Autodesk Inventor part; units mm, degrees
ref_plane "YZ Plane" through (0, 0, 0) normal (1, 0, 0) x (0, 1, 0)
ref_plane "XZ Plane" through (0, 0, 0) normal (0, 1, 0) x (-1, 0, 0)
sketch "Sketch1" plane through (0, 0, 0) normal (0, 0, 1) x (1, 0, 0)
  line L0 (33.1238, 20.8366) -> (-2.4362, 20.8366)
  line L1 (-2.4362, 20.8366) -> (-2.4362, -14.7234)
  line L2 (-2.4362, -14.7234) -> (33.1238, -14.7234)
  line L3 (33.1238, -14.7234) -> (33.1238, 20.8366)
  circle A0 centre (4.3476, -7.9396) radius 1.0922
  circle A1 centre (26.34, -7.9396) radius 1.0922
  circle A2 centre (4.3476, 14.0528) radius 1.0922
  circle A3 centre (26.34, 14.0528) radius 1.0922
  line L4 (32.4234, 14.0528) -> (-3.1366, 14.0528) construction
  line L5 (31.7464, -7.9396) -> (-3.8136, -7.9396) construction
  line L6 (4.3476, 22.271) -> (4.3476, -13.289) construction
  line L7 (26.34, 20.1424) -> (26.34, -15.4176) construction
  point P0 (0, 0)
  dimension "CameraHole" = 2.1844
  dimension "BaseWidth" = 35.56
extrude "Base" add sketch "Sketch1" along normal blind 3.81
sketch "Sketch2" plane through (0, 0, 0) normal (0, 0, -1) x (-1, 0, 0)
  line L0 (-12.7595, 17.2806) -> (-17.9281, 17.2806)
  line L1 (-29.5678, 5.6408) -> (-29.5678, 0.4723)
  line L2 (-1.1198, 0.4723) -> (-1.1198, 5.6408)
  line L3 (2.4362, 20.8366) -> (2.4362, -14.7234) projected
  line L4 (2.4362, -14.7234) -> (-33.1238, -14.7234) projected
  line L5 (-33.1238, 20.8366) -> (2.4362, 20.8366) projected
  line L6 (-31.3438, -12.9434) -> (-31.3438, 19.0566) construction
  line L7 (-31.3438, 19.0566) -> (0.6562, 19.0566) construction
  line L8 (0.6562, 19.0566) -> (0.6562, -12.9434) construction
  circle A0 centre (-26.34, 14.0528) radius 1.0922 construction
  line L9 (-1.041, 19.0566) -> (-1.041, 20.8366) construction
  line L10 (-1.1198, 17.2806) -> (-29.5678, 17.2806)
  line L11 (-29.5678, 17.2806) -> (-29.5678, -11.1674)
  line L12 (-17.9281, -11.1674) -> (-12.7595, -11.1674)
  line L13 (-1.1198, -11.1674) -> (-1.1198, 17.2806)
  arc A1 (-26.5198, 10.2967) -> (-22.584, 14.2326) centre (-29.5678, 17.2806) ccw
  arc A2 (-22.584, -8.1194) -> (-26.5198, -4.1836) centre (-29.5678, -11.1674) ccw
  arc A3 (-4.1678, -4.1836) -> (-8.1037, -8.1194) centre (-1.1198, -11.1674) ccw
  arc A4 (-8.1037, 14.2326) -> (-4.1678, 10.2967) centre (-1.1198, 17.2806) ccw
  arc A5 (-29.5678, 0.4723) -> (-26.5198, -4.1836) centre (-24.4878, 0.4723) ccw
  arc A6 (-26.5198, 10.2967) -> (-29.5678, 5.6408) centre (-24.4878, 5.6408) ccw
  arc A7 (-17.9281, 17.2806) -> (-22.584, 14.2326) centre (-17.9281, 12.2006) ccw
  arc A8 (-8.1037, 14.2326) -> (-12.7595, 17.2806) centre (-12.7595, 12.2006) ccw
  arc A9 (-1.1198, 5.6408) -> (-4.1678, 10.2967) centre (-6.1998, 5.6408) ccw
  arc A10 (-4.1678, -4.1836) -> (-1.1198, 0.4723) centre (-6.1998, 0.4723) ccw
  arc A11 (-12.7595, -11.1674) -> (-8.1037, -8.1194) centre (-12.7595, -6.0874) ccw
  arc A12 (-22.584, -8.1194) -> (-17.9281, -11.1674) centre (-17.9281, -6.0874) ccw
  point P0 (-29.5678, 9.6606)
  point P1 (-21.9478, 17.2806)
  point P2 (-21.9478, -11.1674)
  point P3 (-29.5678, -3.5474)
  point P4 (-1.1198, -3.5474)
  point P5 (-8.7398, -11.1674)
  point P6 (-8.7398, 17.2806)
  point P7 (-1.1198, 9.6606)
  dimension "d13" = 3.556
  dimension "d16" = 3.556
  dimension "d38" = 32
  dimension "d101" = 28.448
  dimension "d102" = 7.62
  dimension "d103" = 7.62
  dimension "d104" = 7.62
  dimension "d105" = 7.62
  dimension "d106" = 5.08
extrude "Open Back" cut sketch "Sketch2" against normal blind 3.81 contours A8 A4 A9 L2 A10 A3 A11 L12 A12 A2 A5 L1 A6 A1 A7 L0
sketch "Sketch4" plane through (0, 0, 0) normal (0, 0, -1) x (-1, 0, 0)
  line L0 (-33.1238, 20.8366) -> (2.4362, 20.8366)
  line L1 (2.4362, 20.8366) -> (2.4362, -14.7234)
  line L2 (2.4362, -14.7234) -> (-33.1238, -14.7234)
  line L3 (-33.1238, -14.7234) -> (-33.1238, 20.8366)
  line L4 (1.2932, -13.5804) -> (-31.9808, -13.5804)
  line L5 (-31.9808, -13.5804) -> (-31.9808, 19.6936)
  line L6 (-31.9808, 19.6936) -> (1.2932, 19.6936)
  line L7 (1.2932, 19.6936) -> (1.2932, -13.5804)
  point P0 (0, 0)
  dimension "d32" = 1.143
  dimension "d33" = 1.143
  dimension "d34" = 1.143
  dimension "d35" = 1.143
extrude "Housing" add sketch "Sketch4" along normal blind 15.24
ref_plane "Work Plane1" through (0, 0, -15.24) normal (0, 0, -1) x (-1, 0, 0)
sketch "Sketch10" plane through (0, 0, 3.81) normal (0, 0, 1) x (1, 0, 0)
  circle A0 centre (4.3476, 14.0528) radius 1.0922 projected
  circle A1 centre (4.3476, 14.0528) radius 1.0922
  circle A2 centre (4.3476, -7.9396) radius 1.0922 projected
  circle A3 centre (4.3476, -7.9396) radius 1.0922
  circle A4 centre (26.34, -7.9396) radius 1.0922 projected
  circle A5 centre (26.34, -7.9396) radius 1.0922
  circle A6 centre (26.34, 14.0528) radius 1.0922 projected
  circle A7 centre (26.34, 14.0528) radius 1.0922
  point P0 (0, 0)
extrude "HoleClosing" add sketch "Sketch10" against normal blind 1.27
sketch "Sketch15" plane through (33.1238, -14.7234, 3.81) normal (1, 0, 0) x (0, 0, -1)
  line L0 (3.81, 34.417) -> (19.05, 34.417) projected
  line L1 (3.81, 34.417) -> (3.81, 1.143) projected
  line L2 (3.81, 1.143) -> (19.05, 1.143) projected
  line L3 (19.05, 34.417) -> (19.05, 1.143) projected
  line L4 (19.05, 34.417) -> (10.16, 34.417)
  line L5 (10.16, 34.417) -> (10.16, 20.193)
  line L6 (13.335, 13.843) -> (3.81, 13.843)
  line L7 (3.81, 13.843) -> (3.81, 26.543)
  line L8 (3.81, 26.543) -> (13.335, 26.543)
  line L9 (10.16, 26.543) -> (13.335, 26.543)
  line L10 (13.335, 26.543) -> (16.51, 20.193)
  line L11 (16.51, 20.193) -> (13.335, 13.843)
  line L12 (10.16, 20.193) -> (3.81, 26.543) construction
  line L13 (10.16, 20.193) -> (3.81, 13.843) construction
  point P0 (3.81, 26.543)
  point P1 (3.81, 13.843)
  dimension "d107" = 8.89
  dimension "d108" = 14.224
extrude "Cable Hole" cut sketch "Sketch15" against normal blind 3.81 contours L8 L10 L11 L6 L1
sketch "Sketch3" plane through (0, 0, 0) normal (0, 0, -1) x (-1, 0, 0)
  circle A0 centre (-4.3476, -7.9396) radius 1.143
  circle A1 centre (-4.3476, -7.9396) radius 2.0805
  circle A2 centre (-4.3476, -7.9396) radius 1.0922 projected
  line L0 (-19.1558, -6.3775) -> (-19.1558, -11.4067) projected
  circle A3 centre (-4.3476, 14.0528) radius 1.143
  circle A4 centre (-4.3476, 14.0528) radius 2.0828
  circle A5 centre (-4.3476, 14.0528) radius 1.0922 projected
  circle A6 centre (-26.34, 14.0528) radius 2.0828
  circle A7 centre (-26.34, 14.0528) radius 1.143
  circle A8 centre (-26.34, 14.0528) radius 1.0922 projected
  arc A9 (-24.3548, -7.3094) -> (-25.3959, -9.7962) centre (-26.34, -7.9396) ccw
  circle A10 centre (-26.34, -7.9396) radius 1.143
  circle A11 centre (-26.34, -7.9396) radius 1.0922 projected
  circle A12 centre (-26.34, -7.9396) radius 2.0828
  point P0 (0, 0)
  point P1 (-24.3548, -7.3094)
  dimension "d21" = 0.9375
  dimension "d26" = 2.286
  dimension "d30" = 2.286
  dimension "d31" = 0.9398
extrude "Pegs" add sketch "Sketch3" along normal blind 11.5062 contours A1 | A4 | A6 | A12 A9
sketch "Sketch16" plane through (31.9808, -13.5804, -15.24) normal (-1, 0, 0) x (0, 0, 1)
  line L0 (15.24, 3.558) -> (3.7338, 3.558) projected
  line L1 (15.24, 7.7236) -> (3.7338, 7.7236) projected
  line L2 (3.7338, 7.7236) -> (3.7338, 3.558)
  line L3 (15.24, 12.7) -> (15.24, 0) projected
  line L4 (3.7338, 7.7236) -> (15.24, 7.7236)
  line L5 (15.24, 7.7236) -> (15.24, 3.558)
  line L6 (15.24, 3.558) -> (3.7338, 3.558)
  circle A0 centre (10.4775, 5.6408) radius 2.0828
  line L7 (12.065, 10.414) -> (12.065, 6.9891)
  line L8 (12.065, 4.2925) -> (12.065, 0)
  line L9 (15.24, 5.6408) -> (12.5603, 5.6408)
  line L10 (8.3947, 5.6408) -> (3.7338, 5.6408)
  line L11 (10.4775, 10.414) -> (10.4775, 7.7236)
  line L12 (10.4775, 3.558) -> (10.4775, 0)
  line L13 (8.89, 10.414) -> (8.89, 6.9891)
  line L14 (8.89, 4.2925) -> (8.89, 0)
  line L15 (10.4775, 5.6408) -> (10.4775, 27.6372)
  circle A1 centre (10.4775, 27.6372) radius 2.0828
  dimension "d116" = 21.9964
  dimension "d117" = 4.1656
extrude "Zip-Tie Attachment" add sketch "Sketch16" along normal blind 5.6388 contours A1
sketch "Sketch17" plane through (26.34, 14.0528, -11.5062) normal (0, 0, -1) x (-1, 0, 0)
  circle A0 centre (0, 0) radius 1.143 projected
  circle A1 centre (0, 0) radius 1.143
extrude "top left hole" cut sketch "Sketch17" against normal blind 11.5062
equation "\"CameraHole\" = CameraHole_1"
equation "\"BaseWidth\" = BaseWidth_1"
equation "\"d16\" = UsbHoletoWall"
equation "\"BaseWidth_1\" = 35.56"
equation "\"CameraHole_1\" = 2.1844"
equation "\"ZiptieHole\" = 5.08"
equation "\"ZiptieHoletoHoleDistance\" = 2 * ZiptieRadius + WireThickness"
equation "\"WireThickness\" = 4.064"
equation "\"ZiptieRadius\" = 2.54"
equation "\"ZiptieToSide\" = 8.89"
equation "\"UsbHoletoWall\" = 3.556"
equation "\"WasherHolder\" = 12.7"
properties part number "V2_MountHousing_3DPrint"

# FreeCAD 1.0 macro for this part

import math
import FreeCAD as App
import Part
import Sketcher
from FreeCAD import Vector
Q = App.Units.Quantity

doc = App.newDocument("Part")
body = doc.addObject("PartDesign::Body", "Body")

sketch1 = body.newObject("Sketcher::SketchObject", "Sketch")
sketch1.AttachmentSupport = (doc.getObject("XY_Plane"), [""])
sketch1.MapMode = "FlatFace"
sketch1.addGeometry([
    Part.LineSegment(Vector(33.1238, -14.7234, 0), Vector(33.1238, 20.8366, 0)),
    Part.LineSegment(Vector(33.1238, 20.8366, 0), Vector(-2.4362, 20.8366, 0)),
    Part.LineSegment(Vector(-2.4362, 20.8366, 0), Vector(-2.4362, -14.7234, 0)),
    Part.LineSegment(Vector(-2.4362, -14.7234, 0), Vector(33.1238, -14.7234, 0)),
    Part.Circle(Vector(4.3476, -7.9396, 0), Vector(0, 0, 1), 1.0922),
    Part.Circle(Vector(26.34, -7.9396, 0), Vector(0, 0, 1), 1.0922),
    Part.Circle(Vector(4.3476, 14.0528, 0), Vector(0, 0, 1), 1.0922),
    Part.Circle(Vector(26.34, 14.0528, 0), Vector(0, 0, 1), 1.0922),
], False)
sketch1.addConstraint([
    Sketcher.Constraint("Coincident", 0, 2, 1, 1),
    Sketcher.Constraint("Coincident", 1, 2, 2, 1),
    Sketcher.Constraint("Coincident", 2, 2, 3, 1),
    Sketcher.Constraint("Coincident", 3, 2, 0, 1),
    Sketcher.Constraint("Vertical", 0),
    Sketcher.Constraint("Horizontal", 1),
    Sketcher.Constraint("Vertical", 2),
    Sketcher.Constraint("Horizontal", 3),
    Sketcher.Constraint("Equal", 4, 5),
    Sketcher.Constraint("Equal", 5, 6),
    Sketcher.Constraint("Equal", 6, 7),
    Sketcher.Constraint("Horizontal", 4, 3, 5, 3),
    Sketcher.Constraint("Horizontal", 6, 3, 7, 3),
    Sketcher.Constraint("Vertical", 4, 3, 6, 3),
    Sketcher.Constraint("Vertical", 5, 3, 7, 3),
    Sketcher.Constraint("Equal", 3, 0),
    Sketcher.Constraint("Diameter", 4, Q("0.086 in")),
    Sketcher.Constraint("DistanceX", 1, 2, 1, 1, Q("1.4 in")),
    Sketcher.Constraint("DistanceX", -1, 1, 5, 3, Q("1.037 in")),
    Sketcher.Constraint("DistanceX", -1, 1, 4, 3, Q("4.3476 mm")),
    Sketcher.Constraint("DistanceY", 4, 3, -1, 1, Q("7.9396 mm")),
    Sketcher.Constraint("DistanceY", -1, 1, 6, 3, Q("14.0528 mm")),
    Sketcher.Constraint("DistanceX", -1, 1, 0, 2, Q("33.1238 mm")),
    Sketcher.Constraint("DistanceY", -1, 1, 0, 2, Q("20.8366 mm")),
])
pad1 = body.newObject("PartDesign::Pad", "Pad")
pad1.Profile = sketch1
pad1.Length = Q("0.15 in")

sketch2 = body.newObject("Sketcher::SketchObject", "Sketch001")
sketch2.AttachmentSupport = (doc.getObject("XY_Plane"), [""])
sketch2.MapMode = "FlatFace"
sketch2.addGeometry([
    Part.ArcOfCircle(Part.Circle(Vector(12.7595, 12.2006, 0), Vector(0, 0, 1), 5.079911), math.radians(90), math.radians(156.421384)),
    Part.LineSegment(Vector(12.7595, 17.2806, 0), Vector(17.9281, 17.2806, 0)),
    Part.ArcOfCircle(Part.Circle(Vector(17.9281, 12.2006, 0), Vector(0, 0, 1), 5.08), math.radians(23.578165), math.radians(90)),
    Part.ArcOfCircle(Part.Circle(Vector(29.5678, 17.2806, 0), Vector(0, 0, 1), 7.62005), math.radians(-156.421685), math.radians(-113.578014)),
    Part.ArcOfCircle(Part.Circle(Vector(24.4878, 5.6408, 0), Vector(0, 0, 1), 5.080003), math.radians(0), math.radians(66.421835)),
    Part.LineSegment(Vector(29.5678, 5.6408, 0), Vector(29.5678, 0.4723, 0)),
    Part.ArcOfCircle(Part.Circle(Vector(24.4878, 0.4723, 0), Vector(0, 0, 1), 5.08), math.radians(-66.421835), math.radians(0)),
    Part.ArcOfCircle(Part.Circle(Vector(29.5678, -11.1674, 0), Vector(0, 0, 1), 7.619958), math.radians(113.578315), math.radians(156.421685)),
    Part.ArcOfCircle(Part.Circle(Vector(17.9281, -6.0874, 0), Vector(0, 0, 1), 5.080003), math.radians(-90), math.radians(-23.578165)),
    Part.LineSegment(Vector(17.9281, -11.1674, 0), Vector(12.7595, -11.1674, 0)),
    Part.ArcOfCircle(Part.Circle(Vector(12.7595, -6.0874, 0), Vector(0, 0, 1), 5.08), math.radians(-156.421384), math.radians(-90)),
    Part.ArcOfCircle(Part.Circle(Vector(1.1198, -11.1674, 0), Vector(0, 0, 1), 7.619958), math.radians(23.578014), math.radians(66.421685)),
    Part.ArcOfCircle(Part.Circle(Vector(6.1998, 0.4723, 0), Vector(0, 0, 1), 5.080003), math.radians(180), math.radians(246.421835)),
    Part.LineSegment(Vector(1.1198, 0.4723, 0), Vector(1.1198, 5.6408, 0)),
    Part.ArcOfCircle(Part.Circle(Vector(6.1998, 5.6408, 0), Vector(0, 0, 1), 5.08), math.radians(113.578165), math.radians(180)),
    Part.ArcOfCircle(Part.Circle(Vector(1.1198, 17.2806, 0), Vector(0, 0, 1), 7.62005), math.radians(-66.421986), math.radians(-23.578014)),
], False)
sketch2.addConstraint([
    Sketcher.Constraint("Tangent", 0, 1, 1, 1),
    Sketcher.Constraint("Tangent", 1, 2, 2, 2),
    Sketcher.Constraint("Tangent", 2, 1, 3, 1),
    Sketcher.Constraint("Tangent", 3, 2, 4, 2),
    Sketcher.Constraint("Tangent", 4, 1, 5, 1),
    Sketcher.Constraint("Tangent", 5, 2, 6, 2),
    Sketcher.Constraint("Tangent", 6, 1, 7, 1),
    Sketcher.Constraint("Tangent", 7, 2, 8, 2),
    Sketcher.Constraint("Tangent", 8, 1, 9, 1),
    Sketcher.Constraint("Tangent", 9, 2, 10, 2),
    Sketcher.Constraint("Tangent", 10, 1, 11, 1),
    Sketcher.Constraint("Tangent", 11, 2, 12, 2),
    Sketcher.Constraint("Tangent", 12, 1, 13, 1),
    Sketcher.Constraint("Tangent", 13, 2, 14, 2),
    Sketcher.Constraint("Tangent", 14, 1, 15, 1),
    Sketcher.Constraint("Tangent", 15, 2, 0, 2),
    Sketcher.Constraint("Horizontal", 1),
    Sketcher.Constraint("Vertical", 5),
    Sketcher.Constraint("Horizontal", 9),
    Sketcher.Constraint("Vertical", 13),
    Sketcher.Constraint("Equal", 0, 2),
    Sketcher.Constraint("Equal", 2, 4),
    Sketcher.Constraint("Equal", 4, 6),
    Sketcher.Constraint("Equal", 3, 7),
    Sketcher.Constraint("Equal", 6, 8),
    Sketcher.Constraint("Equal", 8, 10),
    Sketcher.Constraint("Equal", 7, 11),
    Sketcher.Constraint("Equal", 10, 12),
    Sketcher.Constraint("Equal", 12, 14),
    Sketcher.Constraint("Equal", 11, 15),
    Sketcher.Constraint("Horizontal", 7, 3, 11, 3),
    Sketcher.Constraint("Horizontal", 6, 3, 12, 3),
    Sketcher.Constraint("Horizontal", 4, 3, 14, 3),
    Sketcher.Constraint("Horizontal", 3, 3, 15, 3),
    Sketcher.Constraint("Horizontal", 15, 3, 0, 1),
    Sketcher.Constraint("Horizontal", 11, 3, 8, 1),
    Sketcher.Constraint("Vertical", 3, 3, 7, 3),
    Sketcher.Constraint("Vertical", 7, 3, 4, 1),
    Sketcher.Constraint("Equal", 9, 5),
    Sketcher.Constraint("Radius", 0, Q("0.2 in")),
    Sketcher.Constraint("Radius", 3, Q("0.3 in")),
    Sketcher.Constraint("DistanceY", 7, 3, 3, 3, Q("1.12 in")),
    Sketcher.Constraint("DistanceY", -1, 1, 6, 3, Q("0.0186 in")),
    Sketcher.Constraint("DistanceX", -1, 1, 0, 3, Q("12.7595 mm")),
])
pocket1 = body.newObject("PartDesign::Pocket", "Pocket")
pocket1.Profile = sketch2
pocket1.Length = Q("0.15 in")
pocket1.Reversed = True

sketch3 = body.newObject("Sketcher::SketchObject", "Sketch002")
sketch3.AttachmentSupport = (doc.getObject("XY_Plane"), [""])
sketch3.MapMode = "FlatFace"
sketch3.addGeometry([
    Part.LineSegment(Vector(-2.4362, 20.8366, 0), Vector(33.1238, 20.8366, 0)),
    Part.LineSegment(Vector(33.1238, 20.8366, 0), Vector(33.1238, -14.7234, 0)),
    Part.LineSegment(Vector(33.1238, -14.7234, 0), Vector(-2.4362, -14.7234, 0)),
    Part.LineSegment(Vector(-2.4362, -14.7234, 0), Vector(-2.4362, 20.8366, 0)),
    Part.LineSegment(Vector(-1.2932, 19.6936, 0), Vector(-1.2932, -13.5804, 0)),
    Part.LineSegment(Vector(-1.2932, -13.5804, 0), Vector(31.9808, -13.5804, 0)),
    Part.LineSegment(Vector(31.9808, -13.5804, 0), Vector(31.9808, 19.6936, 0)),
    Part.LineSegment(Vector(31.9808, 19.6936, 0), Vector(-1.2932, 19.6936, 0)),
], False)
sketch3.addConstraint([
    Sketcher.Constraint("Coincident", 0, 2, 1, 1),
    Sketcher.Constraint("Coincident", 1, 2, 2, 1),
    Sketcher.Constraint("Coincident", 2, 2, 3, 1),
    Sketcher.Constraint("Coincident", 3, 2, 0, 1),
    Sketcher.Constraint("Coincident", 4, 2, 5, 1),
    Sketcher.Constraint("Coincident", 5, 2, 6, 1),
    Sketcher.Constraint("Coincident", 6, 2, 7, 1),
    Sketcher.Constraint("Coincident", 7, 2, 4, 1),
    Sketcher.Constraint("Horizontal", 0),
    Sketcher.Constraint("Vertical", 1),
    Sketcher.Constraint("Horizontal", 2),
    Sketcher.Constraint("Vertical", 3),
    Sketcher.Constraint("Vertical", 4),
    Sketcher.Constraint("Horizontal", 5),
    Sketcher.Constraint("Vertical", 6),
    Sketcher.Constraint("Horizontal", 7),
    Sketcher.Constraint("Equal", 2, 1),
    Sketcher.Constraint("Equal", 7, 4),
    Sketcher.Constraint("DistanceX", 0, 1, 0, 2, Q("1.4 in")),
    Sketcher.Constraint("DistanceX", 2, 2, 4, 2, Q("0.045 in")),
    Sketcher.Constraint("DistanceY", 2, 2, 4, 2, Q("0.045 in")),
    Sketcher.Constraint("DistanceX", 5, 2, 1, 2, Q("0.045 in")),
    Sketcher.Constraint("DistanceX", -1, 1, 0, 2, Q("33.1238 mm")),
    Sketcher.Constraint("DistanceY", -1, 1, 0, 2, Q("20.8366 mm")),
])
pad2 = body.newObject("PartDesign::Pad", "Pad001")
pad2.Profile = sketch3
pad2.Length = Q("0.6 in")
pad2.Reversed = True

sketch4 = body.newObject("Sketcher::SketchObject", "Sketch003")
sketch4.AttachmentSupport = (doc.getObject("XY_Plane"), [""])
sketch4.MapMode = "FlatFace"
sketch4.AttachmentOffset = App.Placement(Vector(0, 0, 0.15 * 25.4), App.Rotation())
sketch4.addGeometry([
    Part.Circle(Vector(4.3476, 14.0528, 0), Vector(0, 0, 1), 1.0922),
    Part.Circle(Vector(4.3476, -7.9396, 0), Vector(0, 0, 1), 1.0922),
    Part.Circle(Vector(26.34, -7.9396, 0), Vector(0, 0, 1), 1.0922),
    Part.Circle(Vector(26.34, 14.0528, 0), Vector(0, 0, 1), 1.0922),
], False)
sketch4.addConstraint([
    Sketcher.Constraint("Equal", 0, 1),
    Sketcher.Constraint("Equal", 1, 2),
    Sketcher.Constraint("Equal", 2, 3),
    Sketcher.Constraint("Horizontal", 1, 3, 2, 3),
    Sketcher.Constraint("Horizontal", 0, 3, 3, 3),
    Sketcher.Constraint("Vertical", 0, 3, 1, 3),
    Sketcher.Constraint("Vertical", 2, 3, 3, 3),
    Sketcher.Constraint("Diameter", 0, Q("0.086 in")),
    Sketcher.Constraint("DistanceX", -1, 1, 2, 3, Q("1.037 in")),
    Sketcher.Constraint("DistanceX", -1, 1, 0, 3, Q("4.3476 mm")),
    Sketcher.Constraint("DistanceY", -1, 1, 0, 3, Q("14.0528 mm")),
    Sketcher.Constraint("DistanceY", 1, 3, -1, 1, Q("7.9396 mm")),
])
pad3 = body.newObject("PartDesign::Pad", "Pad002")
pad3.Profile = sketch4
pad3.Length = Q("0.05 in")
pad3.Reversed = True

sketch5 = body.newObject("Sketcher::SketchObject", "Sketch004")
sketch5.AttachmentSupport = (doc.getObject("YZ_Plane"), [""])
sketch5.MapMode = "FlatFace"
sketch5.AttachmentOffset = App.Placement(Vector(0, 0, 33.1238), App.Rotation())
sketch5.addGeometry([
    Part.LineSegment(Vector(11.8196, -9.525, 0), Vector(11.8196, 0, 0)),
    Part.LineSegment(Vector(11.8196, 0, 0), Vector(-0.8804, 0, 0)),
    Part.LineSegment(Vector(-0.8804, 0, 0), Vector(-0.8804, -9.525, 0)),
    Part.LineSegment(Vector(-0.8804, -9.525, 0), Vector(5.4696, -12.7, 0)),
    Part.LineSegment(Vector(5.4696, -12.7, 0), Vector(11.8196, -9.525, 0)),
], False)
sketch5.addConstraint([
    Sketcher.Constraint("Coincident", 0, 2, 1, 1),
    Sketcher.Constraint("Coincident", 1, 2, 2, 1),
    Sketcher.Constraint("Coincident", 2, 2, 3, 1),
    Sketcher.Constraint("Coincident", 3, 2, 4, 1),
    Sketcher.Constraint("Coincident", 4, 2, 0, 1),
    Sketcher.Constraint("Vertical", 0),
    Sketcher.Constraint("Horizontal", 1),
    Sketcher.Constraint("Vertical", 2),
    Sketcher.Constraint("PointOnObject", 0, 2, -1),
    Sketcher.Constraint("Horizontal", 2, 2, 4, 2),
    Sketcher.Constraint("Equal", 3, 4),
    Sketcher.Constraint("DistanceX", 1, 2, 1, 1, Q("0.5 in")),
    Sketcher.Constraint("DistanceY", 3, 2, -1, 1, Q("0.5 in")),
    Sketcher.Constraint("DistanceY", 0, 1, 0, 2, Q("0.375 in")),
    Sketcher.Constraint("DistanceX", -1, 1, 0, 2, Q("11.8196 mm")),
])
pocket2 = body.newObject("PartDesign::Pocket", "Pocket001")
pocket2.Profile = sketch5
pocket2.Length = Q("0.15 in")

sketch6 = body.newObject("Sketcher::SketchObject", "Sketch005")
sketch6.AttachmentSupport = (doc.getObject("XY_Plane"), [""])
sketch6.MapMode = "FlatFace"
sketch6.addGeometry([
    Part.Circle(Vector(4.3476, -7.9396, 0), Vector(0, 0, 1), 2.0805),
    Part.Circle(Vector(4.3476, -7.9396, 0), Vector(0, 0, 1), 1.143),
    Part.Circle(Vector(4.3476, 14.0528, 0), Vector(0, 0, 1), 2.0828),
    Part.Circle(Vector(4.3476, 14.0528, 0), Vector(0, 0, 1), 1.143),
    Part.Circle(Vector(26.34, 14.0528, 0), Vector(0, 0, 1), 2.0828),
    Part.Circle(Vector(26.34, 14.0528, 0), Vector(0, 0, 1), 1.143),
    Part.ArcOfCircle(Part.Circle(Vector(26.34, -7.9396, 0), Vector(0, 0, 1), 2.0828), math.radians(162.388005), math.radians(243.0462)),
    Part.ArcOfCircle(Part.Circle(Vector(26.34, -7.9396, 0), Vector(0, 0, 1), 2.082828), math.radians(-116.9538), math.radians(162.388005)),
    Part.Circle(Vector(26.34, -7.9396, 0), Vector(0, 0, 1), 1.143),
], False)
sketch6.addConstraint([
    Sketcher.Constraint("Tangent", 6, 1, 7, 2),
    Sketcher.Constraint("Coincident", 7, 1, 6, 2),
    Sketcher.Constraint("Coincident", 1, 3, 0, 3),
    Sketcher.Constraint("Coincident", 3, 3, 2, 3),
    Sketcher.Constraint("Coincident", 5, 3, 4, 3),
    Sketcher.Constraint("Coincident", 8, 3, 6, 3),
    Sketcher.Constraint("Equal", 1, 3),
    Sketcher.Constraint("Equal", 2, 4),
    Sketcher.Constraint("Equal", 3, 5),
    Sketcher.Constraint("Equal", 4, 6),
    Sketcher.Constraint("Equal", 5, 8),
    Sketcher.Constraint("Horizontal", 3, 3, 4, 3),
    Sketcher.Constraint("Horizontal", 1, 3, 6, 3),
    Sketcher.Constraint("Vertical", 1, 3, 2, 3),
    Sketcher.Constraint("Vertical", 5, 3, 6, 3),
    Sketcher.Constraint("Diameter", 1, Q("0.09 in")),
    Sketcher.Constraint("Diameter", 2, Q("0.164 in")),
    Sketcher.Constraint("Diameter", 0, Q("4.161 mm")),
    Sketcher.Constraint("DistanceX", -1, 1, 4, 3, Q("1.037 in")),
    Sketcher.Constraint("DistanceY", 6, 3, 6, 1, Q("0.0248 in")),
    Sketcher.Constraint("DistanceY", 7, 1, 6, 3, Q("0.0731 in")),
    Sketcher.Constraint("DistanceX", -1, 1, 0, 3, Q("4.3476 mm")),
    Sketcher.Constraint("DistanceY", 0, 3, -1, 1, Q("7.9396 mm")),
    Sketcher.Constraint("DistanceY", -1, 1, 2, 3, Q("14.0528 mm")),
])
pad4 = body.newObject("PartDesign::Pad", "Pad003")
pad4.Profile = sketch6
pad4.Length = Q("0.453 in")
pad4.Reversed = True

sketch7 = body.newObject("Sketcher::SketchObject", "Sketch006")
sketch7.AttachmentSupport = (doc.getObject("YZ_Plane"), [""])
sketch7.MapMode = "FlatFace"
sketch7.AttachmentOffset = App.Placement(Vector(0, 0, 31.9808), App.Rotation())
sketch7.addGeometry(Part.Circle(Vector(14.0568, -4.7625, 0), Vector(0, 0, 1), 2.0828), False)
sketch7.addConstraint([
    Sketcher.Constraint("Diameter", 0, Q("0.164 in")),
    Sketcher.Constraint("DistanceY", 0, 3, -1, 1, Q("0.1875 in")),
    Sketcher.Constraint("DistanceX", -1, 1, 0, 3, Q("14.0568 mm")),
])
pad5 = body.newObject("PartDesign::Pad", "Pad004")
pad5.Profile = sketch7
pad5.Length = Q("0.222 in")
pad5.Reversed = True

sketch8 = body.newObject("Sketcher::SketchObject", "Sketch007")
sketch8.AttachmentSupport = (doc.getObject("XY_Plane"), [""])
sketch8.MapMode = "FlatFace"
sketch8.AttachmentOffset = App.Placement(Vector(0, 0, -0.453 * 25.4), App.Rotation())
sketch8.addGeometry(Part.Circle(Vector(26.34, 14.0528, 0), Vector(0, 0, 1), 1.143), False)
sketch8.addConstraint([
    Sketcher.Constraint("Diameter", 0, Q("0.09 in")),
    Sketcher.Constraint("DistanceX", -1, 1, 0, 3, Q("1.037 in")),
    Sketcher.Constraint("DistanceY", -1, 1, 0, 3, Q("14.0528 mm")),
])
pocket3 = body.newObject("PartDesign::Pocket", "Pocket002")
pocket3.Profile = sketch8
pocket3.Length = Q("0.453 in")
pocket3.Reversed = True

doc.recompute()
